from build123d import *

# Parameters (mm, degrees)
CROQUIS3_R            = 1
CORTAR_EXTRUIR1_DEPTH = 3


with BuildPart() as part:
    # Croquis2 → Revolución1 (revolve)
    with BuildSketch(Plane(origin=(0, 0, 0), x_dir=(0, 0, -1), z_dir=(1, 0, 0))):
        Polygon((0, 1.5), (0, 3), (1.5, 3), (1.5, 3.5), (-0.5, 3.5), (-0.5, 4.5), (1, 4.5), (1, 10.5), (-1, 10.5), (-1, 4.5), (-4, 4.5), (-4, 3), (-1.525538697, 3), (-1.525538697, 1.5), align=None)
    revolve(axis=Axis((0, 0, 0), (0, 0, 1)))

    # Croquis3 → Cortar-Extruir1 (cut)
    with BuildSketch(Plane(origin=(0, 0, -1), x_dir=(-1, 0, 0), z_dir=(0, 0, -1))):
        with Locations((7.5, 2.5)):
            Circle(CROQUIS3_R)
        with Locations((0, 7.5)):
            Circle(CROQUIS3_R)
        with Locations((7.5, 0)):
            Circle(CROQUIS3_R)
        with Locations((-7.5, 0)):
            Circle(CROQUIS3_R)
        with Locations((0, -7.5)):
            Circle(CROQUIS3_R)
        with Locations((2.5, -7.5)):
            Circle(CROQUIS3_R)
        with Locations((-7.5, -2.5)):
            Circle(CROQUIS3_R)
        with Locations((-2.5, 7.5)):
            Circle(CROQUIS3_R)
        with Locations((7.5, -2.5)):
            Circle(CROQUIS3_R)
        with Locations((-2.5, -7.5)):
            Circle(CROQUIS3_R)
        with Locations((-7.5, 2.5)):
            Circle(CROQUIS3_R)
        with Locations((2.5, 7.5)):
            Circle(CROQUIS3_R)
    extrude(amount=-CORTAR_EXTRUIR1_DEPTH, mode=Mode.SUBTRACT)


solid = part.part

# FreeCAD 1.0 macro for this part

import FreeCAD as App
import Part
import Sketcher

doc = App.newDocument("Part")
body = doc.addObject("PartDesign::Body", "Body")

# Sketch on YZ plane
sketch1 = body.newObject("Sketcher::SketchObject", "Sketch")
sketch1.AttachmentSupport = (doc.getObject("YZ_Plane"), [""])
sketch1.MapMode = "FlatFace"
sketch1.addGeometry([
    Part.LineSegment(App.Vector(1.5, 0, 0), App.Vector(3, 0, 0)),  # 0
    Part.LineSegment(App.Vector(3, 0, 0), App.Vector(3, -1.5, 0)),  # 1
    Part.LineSegment(App.Vector(3, -1.5, 0), App.Vector(3.5, -1.5, 0)),  # 2
    Part.LineSegment(App.Vector(3.5, -1.5, 0), App.Vector(3.5, 0.5, 0)),  # 3
    Part.LineSegment(App.Vector(3.5, 0.5, 0), App.Vector(4.5, 0.5, 0)),  # 4
    Part.LineSegment(App.Vector(4.5, 0.5, 0), App.Vector(4.5, -1, 0)),  # 5
    Part.LineSegment(App.Vector(4.5, -1, 0), App.Vector(10.5, -1, 0)),  # 6
    Part.LineSegment(App.Vector(10.5, -1, 0), App.Vector(10.5, 1, 0)),  # 7
    Part.LineSegment(App.Vector(10.5, 1, 0), App.Vector(4.5, 1, 0)),  # 8
    Part.LineSegment(App.Vector(4.5, 1, 0), App.Vector(4.5, 4, 0)),  # 9
    Part.LineSegment(App.Vector(4.5, 4, 0), App.Vector(3, 4, 0)),  # 10
    Part.LineSegment(App.Vector(3, 4, 0), App.Vector(3, 1.5, 0)),  # 11
    Part.LineSegment(App.Vector(3, 1.5, 0), App.Vector(1.5, 1.5, 0)),  # 12
    Part.LineSegment(App.Vector(1.5, 1.5, 0), App.Vector(1.5, 0, 0)),  # 13
], False)
sketch1.addConstraint([
    Sketcher.Constraint("Coincident", 0, 2, 1, 1),
    Sketcher.Constraint("Coincident", 1, 2, 2, 1),
    Sketcher.Constraint("Coincident", 2, 2, 3, 1),
    Sketcher.Constraint("Coincident", 3, 2, 4, 1),
    Sketcher.Constraint("Coincident", 4, 2, 5, 1),
    Sketcher.Constraint("Coincident", 5, 2, 6, 1),
    Sketcher.Constraint("Coincident", 6, 2, 7, 1),
    Sketcher.Constraint("Coincident", 7, 2, 8, 1),
    Sketcher.Constraint("Coincident", 8, 2, 9, 1),
    Sketcher.Constraint("Coincident", 9, 2, 10, 1),
    Sketcher.Constraint("Coincident", 10, 2, 11, 1),
    Sketcher.Constraint("Coincident", 11, 2, 12, 1),
    Sketcher.Constraint("Coincident", 12, 2, 13, 1),
    Sketcher.Constraint("Coincident", 13, 2, 0, 1),
    Sketcher.Constraint("Horizontal", 0),
    Sketcher.Constraint("Vertical", 1),
    Sketcher.Constraint("Horizontal", 2),
    Sketcher.Constraint("Vertical", 3),
    Sketcher.Constraint("Horizontal", 4),
    Sketcher.Constraint("Vertical", 5),
    Sketcher.Constraint("Horizontal", 6),
    Sketcher.Constraint("Vertical", 7),
    Sketcher.Constraint("Horizontal", 8),
    Sketcher.Constraint("Vertical", 9),
    Sketcher.Constraint("Horizontal", 10),
    Sketcher.Constraint("Vertical", 11),
    Sketcher.Constraint("Horizontal", 12),
    Sketcher.Constraint("Vertical", 13),
    Sketcher.Constraint("Symmetric", 5, 2, 8, 2, -1),
    Sketcher.Constraint("PointOnObject", 0, 2, -1),
    Sketcher.Constraint("Vertical", 1, 2, 10, 2),
    Sketcher.Constraint("Equal", 0, 10),
    Sketcher.Constraint("Equal", 12, 1),
    Sketcher.Constraint("Equal", 1, 5),
    Sketcher.Constraint("Equal", 3, 7),
    Sketcher.Constraint("DistanceX", 4, 1, 4, 2, 1.0),
    Sketcher.Constraint("DistanceX", 6, 1, 6, 2, 6.0),
    Sketcher.Constraint("DistanceY", 3, 1, 3, 2, 2.0),
    Sketcher.Constraint("DistanceY", 9, 1, 9, 2, 3.0),
    Sketcher.Constraint("DistanceX", -1, 1, 0, 2, 3.0),
    Sketcher.Constraint("DistanceY", 11, 2, 11, 1, 2.474461),
])
revolution = body.newObject("PartDesign::Revolution", "Revolution")
revolution.Profile = sketch1
revolution.ReferenceAxis = (sketch1, ["V_Axis"])
revolution.Angle = 360

# Sketch on XY plane
sketch2 = body.newObject("Sketcher::SketchObject", "Sketch001")
sketch2.AttachmentSupport = (doc.getObject("XY_Plane"), [""])
sketch2.MapMode = "FlatFace"
sketch2.AttachmentOffset = App.Placement(App.Vector(0, 0, -1), App.Rotation())
sketch2.addGeometry([
    Part.Circle(App.Vector(-7.5, 2.5, 0), App.Vector(0, 0, 1), 1),  # 0
    Part.Circle(App.Vector(0, 7.5, 0), App.Vector(0, 0, 1), 1),  # 1
    Part.Circle(App.Vector(-7.5, 0, 0), App.Vector(0, 0, 1), 1),  # 2
    Part.Circle(App.Vector(7.5, 0, 0), App.Vector(0, 0, 1), 1),  # 3
    Part.Circle(App.Vector(0, -7.5, 0), App.Vector(0, 0, 1), 1),  # 4
    Part.Circle(App.Vector(-2.5, -7.5, 0), App.Vector(0, 0, 1), 1),  # 5
    Part.Circle(App.Vector(7.5, -2.5, 0), App.Vector(0, 0, 1), 1),  # 6
    Part.Circle(App.Vector(2.5, 7.5, 0), App.Vector(0, 0, 1), 1),  # 7
    Part.Circle(App.Vector(-7.5, -2.5, 0), App.Vector(0, 0, 1), 1),  # 8
    Part.Circle(App.Vector(2.5, -7.5, 0), App.Vector(0, 0, 1), 1),  # 9
    Part.Circle(App.Vector(7.5, 2.5, 0), App.Vector(0, 0, 1), 1),  # 10
    Part.Circle(App.Vector(-2.5, 7.5, 0), App.Vector(0, 0, 1), 1),  # 11
], False)
sketch2.addConstraint([
    Sketcher.Constraint("Equal", 0, 1),
    Sketcher.Constraint("Equal", 1, 2),
    Sketcher.Constraint("Equal", 2, 3),
    Sketcher.Constraint("Equal", 3, 4),
    Sketcher.Constraint("Equal", 4, 5),
    Sketcher.Constraint("Equal", 5, 6),
    Sketcher.Constraint("Equal", 6, 7),
    Sketcher.Constraint("Equal", 7, 8),
    Sketcher.Constraint("Equal", 8, 9),
    Sketcher.Constraint("Equal", 9, 10),
    Sketcher.Constraint("Equal", 10, 11),
    Sketcher.Constraint("Symmetric", 2, 3, 3, 3, -1, 1),
    Sketcher.Constraint("Symmetric", 1, 3, 4, 3, -1, 1),
    Sketcher.Constraint("Symmetric", 0, 3, 6, 3, -1, 1),
    Sketcher.Constraint("Symmetric", 5, 3, 7, 3, -1, 1),
    Sketcher.Constraint("Symmetric", 8, 3, 10, 3, -1, 1),
    Sketcher.Constraint("Symmetric", 9, 3, 11, 3, -1, 1),
    Sketcher.Constraint("Symmetric", 6, 3, 8, 3, -2),
    Sketcher.Constraint("Symmetric", 5, 3, 9, 3, -2),
    Sketcher.Constraint("PointOnObject", 1, 3, -2),
    Sketcher.Constraint("PointOnObject", 2, 3, -1),
    Sketcher.Constraint("Horizontal", 4, 3, 5, 3),
    Sketcher.Constraint("Vertical", 0, 3, 2, 3),
    Sketcher.Constraint("Diameter", 0, 2.0),
    Sketcher.Constraint("DistanceY", 0, 3, 1, 3, 5.0),
    Sketcher.Constraint("DistanceX", 2, 3, 3, 3, 15.0),
    Sketcher.Constraint("DistanceY", 4, 3, 0, 3, 10.0),
    Sketcher.Constraint("DistanceX", 2, 3, 5, 3, 5.0),
])
pocket1 = body.newObject("PartDesign::Pocket", "Pocket")
pocket1.Profile = sketch2
pocket1.Length = 3
pocket1.Reversed = True

doc.recompute()
